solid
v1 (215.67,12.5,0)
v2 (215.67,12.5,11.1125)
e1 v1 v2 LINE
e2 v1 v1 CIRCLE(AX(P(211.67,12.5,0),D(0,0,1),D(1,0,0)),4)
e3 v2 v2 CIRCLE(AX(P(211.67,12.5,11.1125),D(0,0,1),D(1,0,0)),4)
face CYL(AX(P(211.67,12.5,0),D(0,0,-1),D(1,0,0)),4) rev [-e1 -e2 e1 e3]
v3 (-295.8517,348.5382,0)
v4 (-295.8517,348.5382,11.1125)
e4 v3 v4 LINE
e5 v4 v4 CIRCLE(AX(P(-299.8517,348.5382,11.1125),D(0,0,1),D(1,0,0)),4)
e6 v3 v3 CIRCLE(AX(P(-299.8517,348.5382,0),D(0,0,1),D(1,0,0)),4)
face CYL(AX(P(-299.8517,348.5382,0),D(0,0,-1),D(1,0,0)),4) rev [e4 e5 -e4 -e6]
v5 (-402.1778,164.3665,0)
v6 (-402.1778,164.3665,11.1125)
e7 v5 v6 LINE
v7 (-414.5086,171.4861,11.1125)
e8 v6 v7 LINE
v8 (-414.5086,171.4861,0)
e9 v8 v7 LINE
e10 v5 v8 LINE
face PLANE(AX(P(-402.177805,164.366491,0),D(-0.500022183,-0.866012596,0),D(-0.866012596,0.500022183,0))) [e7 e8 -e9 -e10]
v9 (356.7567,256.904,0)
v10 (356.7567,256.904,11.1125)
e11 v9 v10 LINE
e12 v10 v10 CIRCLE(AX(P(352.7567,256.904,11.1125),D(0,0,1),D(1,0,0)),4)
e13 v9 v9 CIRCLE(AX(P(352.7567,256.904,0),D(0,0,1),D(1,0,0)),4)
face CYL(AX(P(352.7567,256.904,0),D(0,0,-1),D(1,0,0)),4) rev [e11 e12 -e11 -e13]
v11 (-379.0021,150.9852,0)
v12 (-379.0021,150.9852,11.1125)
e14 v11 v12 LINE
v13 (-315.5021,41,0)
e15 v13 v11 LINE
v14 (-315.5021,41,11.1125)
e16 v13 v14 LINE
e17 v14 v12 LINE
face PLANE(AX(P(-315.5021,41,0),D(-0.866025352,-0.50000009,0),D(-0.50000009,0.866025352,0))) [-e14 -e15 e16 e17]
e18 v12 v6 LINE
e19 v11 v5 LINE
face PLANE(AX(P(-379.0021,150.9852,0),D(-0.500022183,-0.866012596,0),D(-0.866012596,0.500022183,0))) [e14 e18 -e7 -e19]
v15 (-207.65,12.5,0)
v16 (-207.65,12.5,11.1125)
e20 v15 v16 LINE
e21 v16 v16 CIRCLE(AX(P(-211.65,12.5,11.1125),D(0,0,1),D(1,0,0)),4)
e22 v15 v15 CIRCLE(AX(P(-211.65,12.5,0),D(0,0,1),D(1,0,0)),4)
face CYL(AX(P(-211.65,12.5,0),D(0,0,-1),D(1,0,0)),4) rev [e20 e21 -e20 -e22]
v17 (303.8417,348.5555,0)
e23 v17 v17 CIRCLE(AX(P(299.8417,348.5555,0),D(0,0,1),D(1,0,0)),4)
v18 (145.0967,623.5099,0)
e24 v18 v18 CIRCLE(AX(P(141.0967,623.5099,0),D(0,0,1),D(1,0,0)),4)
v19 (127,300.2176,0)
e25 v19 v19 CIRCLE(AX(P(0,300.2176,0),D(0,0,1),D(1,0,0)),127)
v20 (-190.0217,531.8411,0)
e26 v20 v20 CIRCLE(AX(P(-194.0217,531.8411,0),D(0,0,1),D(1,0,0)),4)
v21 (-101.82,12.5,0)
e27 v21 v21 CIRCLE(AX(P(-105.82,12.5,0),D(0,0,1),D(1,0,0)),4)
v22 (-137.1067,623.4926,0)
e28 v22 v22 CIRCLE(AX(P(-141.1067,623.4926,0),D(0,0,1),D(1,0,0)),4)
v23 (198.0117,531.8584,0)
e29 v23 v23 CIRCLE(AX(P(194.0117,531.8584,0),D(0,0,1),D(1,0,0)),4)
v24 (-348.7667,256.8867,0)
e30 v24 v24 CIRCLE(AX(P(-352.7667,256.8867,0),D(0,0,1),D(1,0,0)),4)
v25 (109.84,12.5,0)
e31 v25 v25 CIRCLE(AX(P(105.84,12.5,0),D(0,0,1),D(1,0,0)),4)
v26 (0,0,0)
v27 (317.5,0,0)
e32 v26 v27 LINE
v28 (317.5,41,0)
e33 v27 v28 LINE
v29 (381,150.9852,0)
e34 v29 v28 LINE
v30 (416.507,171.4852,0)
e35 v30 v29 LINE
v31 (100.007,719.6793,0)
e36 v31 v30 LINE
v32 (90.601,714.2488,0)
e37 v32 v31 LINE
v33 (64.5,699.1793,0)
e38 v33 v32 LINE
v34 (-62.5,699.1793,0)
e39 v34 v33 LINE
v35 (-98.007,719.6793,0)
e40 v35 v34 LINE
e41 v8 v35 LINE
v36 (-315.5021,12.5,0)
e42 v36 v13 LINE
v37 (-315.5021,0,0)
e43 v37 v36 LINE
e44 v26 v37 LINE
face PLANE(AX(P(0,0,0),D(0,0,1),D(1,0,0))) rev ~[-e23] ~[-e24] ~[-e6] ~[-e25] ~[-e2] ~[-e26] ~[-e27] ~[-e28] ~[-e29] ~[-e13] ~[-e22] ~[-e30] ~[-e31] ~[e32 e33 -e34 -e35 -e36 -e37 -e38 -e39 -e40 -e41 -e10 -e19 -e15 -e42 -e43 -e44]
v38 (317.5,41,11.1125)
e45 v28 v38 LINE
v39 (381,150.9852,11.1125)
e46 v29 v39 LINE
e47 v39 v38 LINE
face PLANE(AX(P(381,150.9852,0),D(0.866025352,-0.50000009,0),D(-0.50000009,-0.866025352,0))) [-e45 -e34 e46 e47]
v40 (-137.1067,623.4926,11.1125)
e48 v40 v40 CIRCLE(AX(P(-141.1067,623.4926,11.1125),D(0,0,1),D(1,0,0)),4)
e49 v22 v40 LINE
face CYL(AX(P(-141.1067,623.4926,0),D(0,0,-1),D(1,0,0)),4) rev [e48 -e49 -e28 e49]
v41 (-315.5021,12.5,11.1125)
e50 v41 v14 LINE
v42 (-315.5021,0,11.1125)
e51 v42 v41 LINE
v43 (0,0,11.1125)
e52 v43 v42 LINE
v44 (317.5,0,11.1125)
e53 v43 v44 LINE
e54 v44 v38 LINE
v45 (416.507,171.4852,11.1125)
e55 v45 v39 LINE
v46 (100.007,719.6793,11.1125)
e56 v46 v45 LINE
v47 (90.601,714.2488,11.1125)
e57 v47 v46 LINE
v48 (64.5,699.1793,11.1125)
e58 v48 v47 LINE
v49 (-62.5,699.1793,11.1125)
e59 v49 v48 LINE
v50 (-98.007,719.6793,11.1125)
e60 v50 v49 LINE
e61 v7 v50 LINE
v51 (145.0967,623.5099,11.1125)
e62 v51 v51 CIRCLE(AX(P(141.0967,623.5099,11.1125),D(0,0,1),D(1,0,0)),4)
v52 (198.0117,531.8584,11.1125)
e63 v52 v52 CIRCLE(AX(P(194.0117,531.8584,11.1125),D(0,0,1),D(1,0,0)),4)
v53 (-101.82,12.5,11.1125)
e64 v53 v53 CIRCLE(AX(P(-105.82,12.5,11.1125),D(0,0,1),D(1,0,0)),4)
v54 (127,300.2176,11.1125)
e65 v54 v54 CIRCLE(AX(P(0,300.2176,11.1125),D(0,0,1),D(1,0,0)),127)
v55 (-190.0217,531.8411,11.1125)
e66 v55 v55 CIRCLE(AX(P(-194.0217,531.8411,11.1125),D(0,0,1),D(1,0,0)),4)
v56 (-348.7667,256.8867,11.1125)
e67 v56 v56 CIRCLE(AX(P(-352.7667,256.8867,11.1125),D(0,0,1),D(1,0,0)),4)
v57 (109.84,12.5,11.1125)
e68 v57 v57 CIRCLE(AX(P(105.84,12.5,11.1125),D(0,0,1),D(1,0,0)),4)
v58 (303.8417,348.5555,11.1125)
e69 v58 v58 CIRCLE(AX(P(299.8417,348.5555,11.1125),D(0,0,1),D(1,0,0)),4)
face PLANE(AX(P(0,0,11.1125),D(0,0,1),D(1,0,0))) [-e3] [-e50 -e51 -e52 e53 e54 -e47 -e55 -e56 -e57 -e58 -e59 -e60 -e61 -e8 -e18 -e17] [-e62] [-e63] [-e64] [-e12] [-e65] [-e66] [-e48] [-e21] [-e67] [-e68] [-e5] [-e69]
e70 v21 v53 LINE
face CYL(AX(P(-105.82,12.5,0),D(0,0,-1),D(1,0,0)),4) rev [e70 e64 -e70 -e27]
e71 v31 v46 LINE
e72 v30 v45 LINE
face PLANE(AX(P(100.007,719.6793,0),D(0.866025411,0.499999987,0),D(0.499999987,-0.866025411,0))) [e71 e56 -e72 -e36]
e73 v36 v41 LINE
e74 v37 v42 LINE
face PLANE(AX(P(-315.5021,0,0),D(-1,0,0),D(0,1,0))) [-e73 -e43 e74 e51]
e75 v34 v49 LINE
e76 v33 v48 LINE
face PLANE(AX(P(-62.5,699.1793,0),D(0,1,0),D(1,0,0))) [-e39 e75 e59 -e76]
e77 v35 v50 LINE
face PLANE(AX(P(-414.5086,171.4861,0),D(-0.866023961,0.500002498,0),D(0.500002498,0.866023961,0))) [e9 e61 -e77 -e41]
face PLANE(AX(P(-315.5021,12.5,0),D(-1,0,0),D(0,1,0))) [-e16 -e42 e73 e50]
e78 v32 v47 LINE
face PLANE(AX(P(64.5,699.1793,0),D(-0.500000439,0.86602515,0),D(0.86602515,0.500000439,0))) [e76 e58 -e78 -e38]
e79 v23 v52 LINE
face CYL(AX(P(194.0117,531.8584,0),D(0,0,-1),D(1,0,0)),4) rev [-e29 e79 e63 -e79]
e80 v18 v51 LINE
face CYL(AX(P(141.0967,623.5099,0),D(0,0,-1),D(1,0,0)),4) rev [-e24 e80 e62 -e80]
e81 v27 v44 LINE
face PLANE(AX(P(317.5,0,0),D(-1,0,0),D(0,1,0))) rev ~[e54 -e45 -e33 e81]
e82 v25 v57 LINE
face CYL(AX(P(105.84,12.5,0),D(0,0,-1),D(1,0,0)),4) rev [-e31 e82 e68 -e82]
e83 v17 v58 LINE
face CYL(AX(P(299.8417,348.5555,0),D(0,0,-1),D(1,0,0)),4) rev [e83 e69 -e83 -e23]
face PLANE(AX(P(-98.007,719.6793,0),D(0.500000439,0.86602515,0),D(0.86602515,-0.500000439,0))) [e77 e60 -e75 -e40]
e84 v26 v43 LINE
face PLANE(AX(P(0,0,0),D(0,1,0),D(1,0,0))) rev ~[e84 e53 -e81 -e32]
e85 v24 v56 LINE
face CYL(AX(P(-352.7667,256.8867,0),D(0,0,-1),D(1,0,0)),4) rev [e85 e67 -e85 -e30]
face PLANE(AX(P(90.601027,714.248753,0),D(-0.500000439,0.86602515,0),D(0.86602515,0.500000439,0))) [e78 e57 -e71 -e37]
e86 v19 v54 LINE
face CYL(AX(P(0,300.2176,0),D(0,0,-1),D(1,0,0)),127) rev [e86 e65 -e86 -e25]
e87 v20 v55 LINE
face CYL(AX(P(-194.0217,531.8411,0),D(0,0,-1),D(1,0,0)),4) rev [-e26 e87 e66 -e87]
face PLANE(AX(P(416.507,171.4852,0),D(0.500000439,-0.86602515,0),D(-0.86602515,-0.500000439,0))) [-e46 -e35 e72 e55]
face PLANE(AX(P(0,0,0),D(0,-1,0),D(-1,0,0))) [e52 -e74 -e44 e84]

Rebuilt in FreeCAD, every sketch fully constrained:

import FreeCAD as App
import Part
import Sketcher
from FreeCAD import Vector
Q = App.Units.Quantity


def add_polygon(sketch, points):
    """Adds a closed chain of lines whose ends are joined by coincident constraints."""
    first, n = sketch.GeometryCount, len(points)
    for a, b in zip(points, points[1:] + points[:1]):
        sketch.addGeometry(Part.LineSegment(App.Vector(*a, 0), App.Vector(*b, 0)), False)
    for i in range(n):
        sketch.addConstraint(Sketcher.Constraint("Coincident", first + i, 2, first + (i + 1) % n, 1))

doc = App.newDocument("Part")
body = doc.addObject("PartDesign::Body", "Body")

sketch1 = doc.addObject("Sketcher::SketchObject", "Sketch")
body.addObject(sketch1)
sketch1.AttachmentSupport = (doc.XY_Plane, [""])
sketch1.MapMode = "FlatFace"
add_polygon(sketch1, [(-315.5021, 0), (317.5, 0), (317.5, 41), (381, 150.9852), (416.507, 171.4852), (100.007, 719.6793), (64.5, 699.1793), (-62.5, 699.1793), (-98.007, 719.6793), (-414.5086, 171.4861), (-379.0021, 150.9852), (-315.5021, 41)])
sketch1.addGeometry(Part.Circle(Vector(-211.65, 12.5, 0), Vector(0, 0, 1), 4), False)
sketch1.addGeometry(Part.Circle(Vector(-105.82, 12.5, 0), Vector(0, 0, 1), 4), False)
sketch1.addGeometry(Part.Circle(Vector(-352.7667, 256.8867, 0), Vector(0, 0, 1), 4), False)
sketch1.addGeometry(Part.Circle(Vector(-299.8517, 348.5382, 0), Vector(0, 0, 1), 4), False)
sketch1.addGeometry(Part.Circle(Vector(0, 300.2176, 0), Vector(0, 0, 1), 127), False)
sketch1.addGeometry(Part.Circle(Vector(105.84, 12.5, 0), Vector(0, 0, 1), 4), False)
sketch1.addGeometry(Part.Circle(Vector(211.67, 12.5, 0), Vector(0, 0, 1), 4), False)
sketch1.addGeometry(Part.Circle(Vector(352.7567, 256.904, 0), Vector(0, 0, 1), 4), False)
sketch1.addGeometry(Part.Circle(Vector(299.8417, 348.5555, 0), Vector(0, 0, 1), 4), False)
sketch1.addGeometry(Part.Circle(Vector(-194.0217, 531.8411, 0), Vector(0, 0, 1), 4), False)
sketch1.addGeometry(Part.Circle(Vector(-141.1067, 623.4926, 0), Vector(0, 0, 1), 4), False)
sketch1.addGeometry(Part.Circle(Vector(194.0117, 531.8584, 0), Vector(0, 0, 1), 4), False)
sketch1.addGeometry(Part.Circle(Vector(141.0967, 623.5099, 0), Vector(0, 0, 1), 4), False)
sketch1.addConstraint([
    Sketcher.Constraint("Horizontal", 0),
    Sketcher.Constraint("Vertical", 1),
    Sketcher.Constraint("Horizontal", 6),
    Sketcher.Constraint("Vertical", 11),
    Sketcher.Constraint("PointOnObject", 16, 3, -2),
    Sketcher.Constraint("PointOnObject", 0, 2, -1),
    Sketcher.Constraint("Diameter", 12, Q("8 mm")),
    Sketcher.Constraint("Diameter", 13, Q("8 mm")),
    Sketcher.Constraint("Diameter", 14, Q("8 mm")),
    Sketcher.Constraint("Diameter", 15, Q("8 mm")),
    Sketcher.Constraint("Diameter", 16, Q("254 mm")),
    Sketcher.Constraint("Diameter", 17, Q("8 mm")),
    Sketcher.Constraint("Diameter", 18, Q("8 mm")),
    Sketcher.Constraint("Diameter", 19, Q("8 mm")),
    Sketcher.Constraint("Diameter", 20, Q("8 mm")),
    Sketcher.Constraint("Diameter", 21, Q("8 mm")),
    Sketcher.Constraint("Diameter", 22, Q("8 mm")),
    Sketcher.Constraint("Diameter", 23, Q("8 mm")),
    Sketcher.Constraint("Diameter", 24, Q("8 mm")),
    Sketcher.Constraint("DistanceX", 6, 2, 6, 1, Q("127 mm")),
    Sketcher.Constraint("DistanceY", 1, 1, 1, 2, Q("41 mm")),
    Sketcher.Constraint("DistanceY", 11, 2, 11, 1, Q("41 mm")),
    Sketcher.Constraint("Distance", 2, Q("127 mm")),
    Sketcher.Constraint("Distance", 3, Q("41 mm")),
    Sketcher.Constraint("Distance", 4, Q("633 mm")),
    Sketcher.Constraint("Distance", 5, Q("41 mm")),
    Sketcher.Constraint("Distance", 7, Q("41 mm")),
    Sketcher.Constraint("Distance", 8, Q("633 mm")),
    Sketcher.Constraint("Distance", 9, Q("41 mm")),
    Sketcher.Constraint("Distance", 10, Q("127 mm")),
    Sketcher.Constraint("DistanceX", -1, 1, 2, 2, Q("381 mm")),
    Sketcher.Constraint("DistanceY", -1, 1, 12, 3, Q("12.5 mm")),
    Sketcher.Constraint("DistanceY", -1, 1, 13, 3, Q("12.5 mm")),
    Sketcher.Constraint("DistanceY", -1, 1, 17, 3, Q("12.5 mm")),
    Sketcher.Constraint("DistanceY", -1, 1, 18, 3, Q("12.5 mm")),
    Sketcher.Constraint("DistanceX", -1, 1, 0, 2, Q("317.5 mm")),
    Sketcher.Constraint("DistanceX", -1, 1, 5, 2, Q("64.5 mm")),
    Sketcher.Constraint("DistanceY", 2, 2, 3, 2, Q("20.5 mm")),
    Sketcher.Constraint("DistanceY", 5, 2, 4, 2, Q("20.5 mm")),
    Sketcher.Constraint("DistanceY", 6, 2, 7, 2, Q("20.5 mm")),
    Sketcher.Constraint("DistanceX", 9, 2, 10, 2, Q("63.5 mm")),
    Sketcher.Constraint("DistanceX", 0, 1, 0, 2, Q("633.002 mm")),
    Sketcher.Constraint("DistanceX", 12, 3, -1, 1, Q("211.65 mm")),
    Sketcher.Constraint("DistanceX", 13, 3, -1, 1, Q("105.82 mm")),
    Sketcher.Constraint("DistanceX", -1, 1, 17, 3, Q("105.84 mm")),
    Sketcher.Constraint("DistanceX", -1, 1, 18, 3, Q("211.67 mm")),
    Sketcher.Constraint("DistanceY", -1, 1, 24, 3, Q("623.51 mm")),
    Sketcher.Constraint("DistanceX", 15, 3, 21, 3, Q("105.83 mm")),
    Sketcher.Constraint("DistanceX", 14, 3, 22, 3, Q("211.66 mm")),
    Sketcher.Constraint("DistanceX", 23, 3, 20, 3, Q("105.83 mm")),
    Sketcher.Constraint("DistanceY", -1, 1, 19, 3, Q("256.904 mm")),
    Sketcher.Constraint("DistanceY", -1, 1, 21, 3, Q("531.841 mm")),
    Sketcher.Constraint("DistanceX", 14, 3, 15, 3, Q("52.915 mm")),
    Sketcher.Constraint("DistanceY", 14, 3, 16, 3, Q("43.331 mm")),
    Sketcher.Constraint("DistanceX", 20, 3, 19, 3, Q("52.915 mm")),
    Sketcher.Constraint("DistanceY", 16, 3, 20, 3, Q("48.338 mm")),
    Sketcher.Constraint("DistanceY", 15, 3, 21, 3, Q("183.303 mm")),
    Sketcher.Constraint("DistanceY", 16, 3, 22, 3, Q("323.275 mm")),
    Sketcher.Constraint("DistanceY", 20, 3, 23, 3, Q("183.303 mm")),
    Sketcher.Constraint("DistanceX", 24, 3, 23, 3, Q("52.915 mm")),
    Sketcher.Constraint("DistanceY", 23, 3, 4, 2, Q("187.821 mm")),
    Sketcher.Constraint("DistanceX", 8, 2, 14, 3, Q("61.742 mm")),
    Sketcher.Constraint("DistanceX", -1, 1, 19, 3, Q("352.7567 mm")),
])
pad1 = doc.addObject("PartDesign::Pad", "Pad")
body.addObject(pad1)
pad1.Profile = sketch1
pad1.Length = 11.1125

doc.recompute()
